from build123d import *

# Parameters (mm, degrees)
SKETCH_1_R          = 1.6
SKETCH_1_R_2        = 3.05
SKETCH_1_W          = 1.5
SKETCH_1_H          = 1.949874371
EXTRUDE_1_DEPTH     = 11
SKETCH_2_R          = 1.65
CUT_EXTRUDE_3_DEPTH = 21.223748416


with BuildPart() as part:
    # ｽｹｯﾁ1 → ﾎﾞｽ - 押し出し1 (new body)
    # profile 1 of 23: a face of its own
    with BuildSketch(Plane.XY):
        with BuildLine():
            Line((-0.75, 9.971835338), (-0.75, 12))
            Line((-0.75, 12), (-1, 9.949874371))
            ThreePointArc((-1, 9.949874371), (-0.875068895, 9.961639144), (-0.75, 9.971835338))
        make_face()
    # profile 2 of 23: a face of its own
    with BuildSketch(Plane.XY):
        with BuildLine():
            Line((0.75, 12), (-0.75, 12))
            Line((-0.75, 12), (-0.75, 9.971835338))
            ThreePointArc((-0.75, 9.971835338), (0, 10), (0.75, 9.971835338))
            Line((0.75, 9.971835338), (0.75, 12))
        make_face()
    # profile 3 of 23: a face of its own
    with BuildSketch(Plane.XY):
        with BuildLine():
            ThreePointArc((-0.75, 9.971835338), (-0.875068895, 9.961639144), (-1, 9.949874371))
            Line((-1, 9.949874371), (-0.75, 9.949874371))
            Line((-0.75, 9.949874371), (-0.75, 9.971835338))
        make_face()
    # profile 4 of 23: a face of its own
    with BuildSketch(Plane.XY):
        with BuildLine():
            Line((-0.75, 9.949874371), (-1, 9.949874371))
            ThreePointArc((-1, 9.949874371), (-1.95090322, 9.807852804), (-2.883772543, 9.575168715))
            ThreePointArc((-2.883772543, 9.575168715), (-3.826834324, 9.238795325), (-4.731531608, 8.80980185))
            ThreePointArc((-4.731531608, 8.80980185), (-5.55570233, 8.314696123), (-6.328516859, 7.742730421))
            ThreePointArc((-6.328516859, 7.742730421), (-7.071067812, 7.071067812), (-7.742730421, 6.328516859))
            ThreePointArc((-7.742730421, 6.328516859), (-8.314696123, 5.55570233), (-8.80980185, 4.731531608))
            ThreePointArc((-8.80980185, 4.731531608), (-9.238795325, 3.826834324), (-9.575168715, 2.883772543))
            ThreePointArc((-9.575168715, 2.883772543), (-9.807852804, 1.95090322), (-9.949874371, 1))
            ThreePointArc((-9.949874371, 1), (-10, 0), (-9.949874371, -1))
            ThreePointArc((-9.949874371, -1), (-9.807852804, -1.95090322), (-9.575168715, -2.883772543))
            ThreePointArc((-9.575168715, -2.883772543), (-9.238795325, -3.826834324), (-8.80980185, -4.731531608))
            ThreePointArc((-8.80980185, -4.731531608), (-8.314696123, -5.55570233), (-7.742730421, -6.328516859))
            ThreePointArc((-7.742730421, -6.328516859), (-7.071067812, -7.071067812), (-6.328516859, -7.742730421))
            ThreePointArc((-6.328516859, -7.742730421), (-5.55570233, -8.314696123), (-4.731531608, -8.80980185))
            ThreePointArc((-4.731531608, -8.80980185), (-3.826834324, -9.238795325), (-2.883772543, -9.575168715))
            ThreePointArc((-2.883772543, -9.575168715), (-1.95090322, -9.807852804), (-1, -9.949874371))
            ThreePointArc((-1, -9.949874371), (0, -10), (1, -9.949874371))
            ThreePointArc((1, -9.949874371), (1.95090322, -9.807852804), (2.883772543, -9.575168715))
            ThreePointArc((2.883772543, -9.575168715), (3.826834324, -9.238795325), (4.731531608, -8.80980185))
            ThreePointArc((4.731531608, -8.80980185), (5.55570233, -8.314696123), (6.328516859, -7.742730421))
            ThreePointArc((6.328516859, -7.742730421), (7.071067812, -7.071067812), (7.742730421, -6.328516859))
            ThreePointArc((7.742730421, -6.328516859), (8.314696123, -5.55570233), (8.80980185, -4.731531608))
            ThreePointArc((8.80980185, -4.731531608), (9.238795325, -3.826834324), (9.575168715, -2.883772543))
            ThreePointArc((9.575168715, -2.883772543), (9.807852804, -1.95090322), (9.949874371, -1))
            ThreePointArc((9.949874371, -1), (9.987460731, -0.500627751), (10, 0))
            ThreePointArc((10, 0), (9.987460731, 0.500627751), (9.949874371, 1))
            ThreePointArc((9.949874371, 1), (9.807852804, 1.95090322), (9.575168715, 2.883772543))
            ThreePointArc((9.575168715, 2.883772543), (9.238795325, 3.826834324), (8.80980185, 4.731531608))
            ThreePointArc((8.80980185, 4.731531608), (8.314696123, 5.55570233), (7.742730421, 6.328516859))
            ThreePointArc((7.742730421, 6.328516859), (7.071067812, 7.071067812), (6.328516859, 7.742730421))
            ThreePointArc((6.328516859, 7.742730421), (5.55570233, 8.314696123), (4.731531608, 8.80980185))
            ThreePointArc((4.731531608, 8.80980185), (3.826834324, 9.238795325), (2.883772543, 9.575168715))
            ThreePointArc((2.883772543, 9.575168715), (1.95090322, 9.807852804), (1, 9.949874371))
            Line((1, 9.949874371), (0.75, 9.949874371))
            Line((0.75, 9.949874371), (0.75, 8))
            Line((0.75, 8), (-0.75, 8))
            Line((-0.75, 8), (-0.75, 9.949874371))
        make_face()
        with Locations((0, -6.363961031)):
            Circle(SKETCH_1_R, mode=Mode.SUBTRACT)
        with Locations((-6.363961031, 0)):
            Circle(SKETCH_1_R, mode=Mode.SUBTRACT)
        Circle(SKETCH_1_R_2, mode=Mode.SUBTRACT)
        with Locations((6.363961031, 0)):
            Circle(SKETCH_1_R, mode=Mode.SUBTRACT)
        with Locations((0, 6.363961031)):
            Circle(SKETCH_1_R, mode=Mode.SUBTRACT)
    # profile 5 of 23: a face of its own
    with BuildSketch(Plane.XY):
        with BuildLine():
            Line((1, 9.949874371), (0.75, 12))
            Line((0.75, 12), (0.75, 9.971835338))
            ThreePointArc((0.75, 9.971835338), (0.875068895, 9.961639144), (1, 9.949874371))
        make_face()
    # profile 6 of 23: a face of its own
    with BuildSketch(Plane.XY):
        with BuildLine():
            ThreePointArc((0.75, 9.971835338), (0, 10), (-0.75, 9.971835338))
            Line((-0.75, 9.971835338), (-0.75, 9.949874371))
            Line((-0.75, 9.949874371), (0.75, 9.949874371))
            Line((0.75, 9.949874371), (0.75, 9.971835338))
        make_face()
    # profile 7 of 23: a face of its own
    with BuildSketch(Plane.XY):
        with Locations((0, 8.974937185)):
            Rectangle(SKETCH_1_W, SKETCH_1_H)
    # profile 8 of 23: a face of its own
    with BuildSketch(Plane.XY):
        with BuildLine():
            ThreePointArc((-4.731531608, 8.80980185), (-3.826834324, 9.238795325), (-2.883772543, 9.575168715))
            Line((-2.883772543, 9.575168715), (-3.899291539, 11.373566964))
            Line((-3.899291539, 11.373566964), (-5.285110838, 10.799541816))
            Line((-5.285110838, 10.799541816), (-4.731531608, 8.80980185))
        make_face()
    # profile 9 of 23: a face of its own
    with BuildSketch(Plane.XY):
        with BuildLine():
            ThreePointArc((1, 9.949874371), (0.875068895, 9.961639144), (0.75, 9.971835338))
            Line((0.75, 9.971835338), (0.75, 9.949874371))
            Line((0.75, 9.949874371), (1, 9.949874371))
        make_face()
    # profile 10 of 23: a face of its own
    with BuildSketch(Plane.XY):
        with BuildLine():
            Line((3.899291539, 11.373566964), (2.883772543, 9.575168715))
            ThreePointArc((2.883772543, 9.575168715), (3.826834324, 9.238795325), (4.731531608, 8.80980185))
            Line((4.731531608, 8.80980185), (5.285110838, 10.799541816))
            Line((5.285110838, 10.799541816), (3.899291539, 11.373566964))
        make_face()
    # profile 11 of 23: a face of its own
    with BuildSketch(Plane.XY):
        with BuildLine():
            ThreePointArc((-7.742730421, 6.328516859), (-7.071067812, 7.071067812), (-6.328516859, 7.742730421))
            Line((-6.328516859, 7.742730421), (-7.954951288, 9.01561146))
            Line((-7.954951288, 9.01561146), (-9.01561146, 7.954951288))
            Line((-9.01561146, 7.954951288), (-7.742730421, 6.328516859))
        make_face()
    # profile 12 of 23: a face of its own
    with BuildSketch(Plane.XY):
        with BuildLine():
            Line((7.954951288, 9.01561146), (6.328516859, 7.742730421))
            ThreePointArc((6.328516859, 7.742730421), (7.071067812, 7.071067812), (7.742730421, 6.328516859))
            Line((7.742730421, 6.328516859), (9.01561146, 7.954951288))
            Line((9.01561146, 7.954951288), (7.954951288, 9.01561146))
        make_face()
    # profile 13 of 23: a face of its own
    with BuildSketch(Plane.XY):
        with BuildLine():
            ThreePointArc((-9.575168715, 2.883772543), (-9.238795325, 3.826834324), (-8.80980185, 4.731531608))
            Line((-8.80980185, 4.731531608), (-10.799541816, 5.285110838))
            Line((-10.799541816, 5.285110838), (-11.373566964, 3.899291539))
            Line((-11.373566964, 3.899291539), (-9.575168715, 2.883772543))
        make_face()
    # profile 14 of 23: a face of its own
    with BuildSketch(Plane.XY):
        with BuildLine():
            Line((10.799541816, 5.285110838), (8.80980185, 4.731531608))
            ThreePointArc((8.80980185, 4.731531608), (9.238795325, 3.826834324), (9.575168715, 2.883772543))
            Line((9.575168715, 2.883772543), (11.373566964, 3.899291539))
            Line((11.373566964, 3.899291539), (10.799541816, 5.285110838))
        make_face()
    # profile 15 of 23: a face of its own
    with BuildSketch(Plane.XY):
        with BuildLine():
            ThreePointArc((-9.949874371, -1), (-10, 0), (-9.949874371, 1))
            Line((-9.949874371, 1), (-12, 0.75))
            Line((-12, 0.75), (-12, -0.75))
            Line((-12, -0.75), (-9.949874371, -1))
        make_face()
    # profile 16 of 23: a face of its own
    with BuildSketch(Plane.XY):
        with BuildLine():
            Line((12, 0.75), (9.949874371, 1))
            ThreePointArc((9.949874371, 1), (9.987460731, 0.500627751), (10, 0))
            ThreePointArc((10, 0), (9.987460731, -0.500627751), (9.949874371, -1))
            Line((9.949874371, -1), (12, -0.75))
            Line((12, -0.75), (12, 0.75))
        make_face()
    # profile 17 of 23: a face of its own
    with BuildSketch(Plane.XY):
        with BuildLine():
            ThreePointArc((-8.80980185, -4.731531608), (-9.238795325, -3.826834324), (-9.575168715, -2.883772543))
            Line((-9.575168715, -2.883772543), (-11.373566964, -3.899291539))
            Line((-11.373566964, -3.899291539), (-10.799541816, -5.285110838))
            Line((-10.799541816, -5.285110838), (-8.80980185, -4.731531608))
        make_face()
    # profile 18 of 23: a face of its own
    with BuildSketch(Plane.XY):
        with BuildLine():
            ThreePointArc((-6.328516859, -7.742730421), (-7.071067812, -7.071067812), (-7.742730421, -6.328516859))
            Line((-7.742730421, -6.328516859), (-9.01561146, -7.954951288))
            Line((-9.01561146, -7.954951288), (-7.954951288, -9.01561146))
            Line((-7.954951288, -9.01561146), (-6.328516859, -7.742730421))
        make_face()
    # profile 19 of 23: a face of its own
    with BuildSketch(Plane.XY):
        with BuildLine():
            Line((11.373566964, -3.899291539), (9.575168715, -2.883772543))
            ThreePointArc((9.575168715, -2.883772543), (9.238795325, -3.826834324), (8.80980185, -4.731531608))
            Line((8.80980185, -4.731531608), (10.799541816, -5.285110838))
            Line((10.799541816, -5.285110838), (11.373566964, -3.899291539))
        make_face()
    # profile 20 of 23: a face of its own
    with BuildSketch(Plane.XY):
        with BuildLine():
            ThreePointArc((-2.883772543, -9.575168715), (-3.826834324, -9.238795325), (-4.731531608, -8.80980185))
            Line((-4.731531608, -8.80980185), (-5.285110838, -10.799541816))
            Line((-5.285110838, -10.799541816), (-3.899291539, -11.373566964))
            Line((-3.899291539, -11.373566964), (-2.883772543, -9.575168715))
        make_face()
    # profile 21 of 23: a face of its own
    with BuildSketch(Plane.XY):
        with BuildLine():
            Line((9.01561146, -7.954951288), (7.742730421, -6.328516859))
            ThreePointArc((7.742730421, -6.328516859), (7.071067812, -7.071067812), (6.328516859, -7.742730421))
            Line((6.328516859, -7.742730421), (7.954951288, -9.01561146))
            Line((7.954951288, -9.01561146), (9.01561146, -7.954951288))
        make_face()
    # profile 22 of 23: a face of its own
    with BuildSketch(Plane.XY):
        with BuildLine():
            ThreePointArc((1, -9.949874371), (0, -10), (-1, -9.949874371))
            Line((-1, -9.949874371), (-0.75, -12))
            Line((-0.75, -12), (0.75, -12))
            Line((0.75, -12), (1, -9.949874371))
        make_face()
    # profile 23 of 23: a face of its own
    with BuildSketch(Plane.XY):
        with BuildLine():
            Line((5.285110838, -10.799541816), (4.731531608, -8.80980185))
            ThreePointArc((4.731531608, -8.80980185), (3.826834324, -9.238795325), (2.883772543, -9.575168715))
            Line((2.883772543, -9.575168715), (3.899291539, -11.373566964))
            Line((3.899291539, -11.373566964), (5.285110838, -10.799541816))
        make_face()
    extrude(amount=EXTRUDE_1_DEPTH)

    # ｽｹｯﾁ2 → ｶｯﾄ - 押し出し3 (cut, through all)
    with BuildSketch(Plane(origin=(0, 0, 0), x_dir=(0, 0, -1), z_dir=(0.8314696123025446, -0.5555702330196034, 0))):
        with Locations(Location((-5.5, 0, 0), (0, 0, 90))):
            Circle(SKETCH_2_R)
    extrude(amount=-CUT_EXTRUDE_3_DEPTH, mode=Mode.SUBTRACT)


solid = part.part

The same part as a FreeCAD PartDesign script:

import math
import FreeCAD as App
import Part
import Sketcher

V = App.Vector
Q = App.Units.Quantity

doc = App.newDocument("Part")
body = doc.addObject("PartDesign::Body", "Body")

sketch1 = doc.addObject("Sketcher::SketchObject", "Sketch")
body.addObject(sketch1)
sketch1.AttachmentSupport = (doc.XY_Plane, [""])
sketch1.MapMode = "FlatFace"
sketch1.addGeometry([
    Part.LineSegment(V(-0.8, 12, 0), V(-1, 9.9, 0)),
    Part.ArcOfCircle(Part.Circle(V(0, 0, 0), V(0, 0, 1), 10), math.radians(95.74), math.radians(106.76)),
    Part.LineSegment(V(-2.9, 9.6, 0), V(-3.9, 11.4, 0)),
    Part.LineSegment(V(-3.9, 11.4, 0), V(-5.3, 10.8, 0)),
    Part.LineSegment(V(-5.3, 10.8, 0), V(-4.7, 8.8, 0)),
    Part.ArcOfCircle(Part.Circle(V(0, 0, 0), V(0, 0, 1), 10), math.radians(118.24), math.radians(129.26)),
    Part.LineSegment(V(-6.3, 7.7, 0), V(-8, 9, 0)),
    Part.LineSegment(V(-8, 9, 0), V(-9, 8, 0)),
    Part.LineSegment(V(-9, 8, 0), V(-7.7, 6.3, 0)),
    Part.ArcOfCircle(Part.Circle(V(0, 0, 0), V(0, 0, 1), 10), math.radians(140.74), math.radians(151.76)),
    Part.LineSegment(V(-8.8, 4.7, 0), V(-10.8, 5.3, 0)),
    Part.LineSegment(V(-10.8, 5.3, 0), V(-11.4, 3.9, 0)),
    Part.LineSegment(V(-11.4, 3.9, 0), V(-9.6, 2.9, 0)),
    Part.ArcOfCircle(Part.Circle(V(0, 0, 0), V(0, 0, 1), 10), math.radians(163.24), math.radians(174.26)),
    Part.LineSegment(V(-9.9, 1, 0), V(-12, 0.8, 0)),
    Part.LineSegment(V(-12, 0.8, 0), V(-12, -0.8, 0)),
    Part.LineSegment(V(-12, -0.8, 0), V(-9.9, -1, 0)),
    Part.ArcOfCircle(Part.Circle(V(0, 0, 0), V(0, 0, 1), 10), math.radians(-174.26), math.radians(-163.24)),
    Part.LineSegment(V(-9.6, -2.9, 0), V(-11.4, -3.9, 0)),
    Part.LineSegment(V(-11.4, -3.9, 0), V(-10.8, -5.3, 0)),
    Part.LineSegment(V(-10.8, -5.3, 0), V(-8.8, -4.7, 0)),
    Part.ArcOfCircle(Part.Circle(V(0, 0, 0), V(0, 0, 1), 10), math.radians(-151.76), math.radians(-140.74)),
    Part.LineSegment(V(-7.7, -6.3, 0), V(-9, -8, 0)),
    Part.LineSegment(V(-9, -8, 0), V(-8, -9, 0)),
    Part.LineSegment(V(-8, -9, 0), V(-6.3, -7.7, 0)),
    Part.ArcOfCircle(Part.Circle(V(0, 0, 0), V(0, 0, 1), 10), math.radians(-129.26), math.radians(-118.24)),
    Part.LineSegment(V(-4.7, -8.8, 0), V(-5.3, -10.8, 0)),
    Part.LineSegment(V(-5.3, -10.8, 0), V(-3.9, -11.4, 0)),
    Part.LineSegment(V(-3.9, -11.4, 0), V(-2.9, -9.6, 0)),
    Part.ArcOfCircle(Part.Circle(V(0, 0, 0), V(0, 0, 1), 10), math.radians(-106.76), math.radians(-95.74)),
    Part.LineSegment(V(-1, -9.9, 0), V(-0.8, -12, 0)),
    Part.LineSegment(V(-0.8, -12, 0), V(0.8, -12, 0)),
    Part.LineSegment(V(0.8, -12, 0), V(1, -9.9, 0)),
    Part.ArcOfCircle(Part.Circle(V(0, 0, 0), V(0, 0, 1), 10), math.radians(-84.26), math.radians(-73.24)),
    Part.LineSegment(V(2.9, -9.6, 0), V(3.9, -11.4, 0)),
    Part.LineSegment(V(3.9, -11.4, 0), V(5.3, -10.8, 0)),
    Part.LineSegment(V(5.3, -10.8, 0), V(4.7, -8.8, 0)),
    Part.ArcOfCircle(Part.Circle(V(0, 0, 0), V(0, 0, 1), 10), math.radians(-61.76), math.radians(-50.74)),
    Part.LineSegment(V(6.3, -7.7, 0), V(8, -9, 0)),
    Part.LineSegment(V(8, -9, 0), V(9, -8, 0)),
    Part.LineSegment(V(9, -8, 0), V(7.7, -6.3, 0)),
    Part.ArcOfCircle(Part.Circle(V(0, 0, 0), V(0, 0, 1), 10), math.radians(-39.26), math.radians(-28.24)),
    Part.LineSegment(V(8.8, -4.7, 0), V(10.8, -5.3, 0)),
    Part.LineSegment(V(10.8, -5.3, 0), V(11.4, -3.9, 0)),
    Part.LineSegment(V(11.4, -3.9, 0), V(9.6, -2.9, 0)),
    Part.ArcOfCircle(Part.Circle(V(0, 0, 0), V(0, 0, 1), 10), math.radians(-16.76), math.radians(-5.74)),
    Part.LineSegment(V(9.9, -1, 0), V(12, -0.8, 0)),
    Part.LineSegment(V(12, -0.8, 0), V(12, 0.8, 0)),
    Part.LineSegment(V(12, 0.8, 0), V(9.9, 1, 0)),
    Part.ArcOfCircle(Part.Circle(V(0, 0, 0), V(0, 0, 1), 10), math.radians(5.74), math.radians(16.76)),
    Part.LineSegment(V(9.6, 2.9, 0), V(11.4, 3.9, 0)),
    Part.LineSegment(V(11.4, 3.9, 0), V(10.8, 5.3, 0)),
    Part.LineSegment(V(10.8, 5.3, 0), V(8.8, 4.7, 0)),
    Part.ArcOfCircle(Part.Circle(V(0, 0, 0), V(0, 0, 1), 10), math.radians(28.24), math.radians(39.26)),
    Part.LineSegment(V(7.7, 6.3, 0), V(9, 8, 0)),
    Part.LineSegment(V(9, 8, 0), V(8, 9, 0)),
    Part.LineSegment(V(8, 9, 0), V(6.3, 7.7, 0)),
    Part.ArcOfCircle(Part.Circle(V(0, 0, 0), V(0, 0, 1), 10), math.radians(50.74), math.radians(61.76)),
    Part.LineSegment(V(4.7, 8.8, 0), V(5.3, 10.8, 0)),
    Part.LineSegment(V(5.3, 10.8, 0), V(3.9, 11.4, 0)),
    Part.LineSegment(V(3.9, 11.4, 0), V(2.9, 9.6, 0)),
    Part.ArcOfCircle(Part.Circle(V(0, 0, 0), V(0, 0, 1), 10), math.radians(73.24), math.radians(84.26)),
    Part.LineSegment(V(1, 9.9, 0), V(0.8, 12, 0)),
    Part.LineSegment(V(0.8, 12, 0), V(-0.8, 12, 0)),
    Part.Circle(V(0, 6.4, 0), V(0, 0, 1), 1.6),
    Part.Circle(V(0, -6.4, 0), V(0, 0, 1), 1.6),
    Part.Circle(V(-6.4, 0, 0), V(0, 0, 1), 1.6),
    Part.Circle(V(0, 0, 0), V(0, 0, 1), 3),
    Part.Circle(V(6.4, 0, 0), V(0, 0, 1), 1.6),
], False)
sketch1.addConstraint([
    Sketcher.Constraint("Coincident", 0, 2, 1, 1),
    Sketcher.Constraint("Coincident", 1, 2, 2, 1),
    Sketcher.Constraint("Coincident", 2, 2, 3, 1),
    Sketcher.Constraint("Coincident", 3, 2, 4, 1),
    Sketcher.Constraint("Coincident", 4, 2, 5, 1),
    Sketcher.Constraint("Coincident", 5, 2, 6, 1),
    Sketcher.Constraint("Coincident", 6, 2, 7, 1),
    Sketcher.Constraint("Coincident", 7, 2, 8, 1),
    Sketcher.Constraint("Coincident", 8, 2, 9, 1),
    Sketcher.Constraint("Coincident", 9, 2, 10, 1),
    Sketcher.Constraint("Coincident", 10, 2, 11, 1),
    Sketcher.Constraint("Coincident", 11, 2, 12, 1),
    Sketcher.Constraint("Coincident", 12, 2, 13, 1),
    Sketcher.Constraint("Coincident", 13, 2, 14, 1),
    Sketcher.Constraint("Coincident", 14, 2, 15, 1),
    Sketcher.Constraint("Coincident", 15, 2, 16, 1),
    Sketcher.Constraint("Coincident", 16, 2, 17, 1),
    Sketcher.Constraint("Coincident", 17, 2, 18, 1),
    Sketcher.Constraint("Coincident", 18, 2, 19, 1),
    Sketcher.Constraint("Coincident", 19, 2, 20, 1),
    Sketcher.Constraint("Coincident", 20, 2, 21, 1),
    Sketcher.Constraint("Coincident", 21, 2, 22, 1),
    Sketcher.Constraint("Coincident", 22, 2, 23, 1),
    Sketcher.Constraint("Coincident", 23, 2, 24, 1),
    Sketcher.Constraint("Coincident", 24, 2, 25, 1),
    Sketcher.Constraint("Coincident", 25, 2, 26, 1),
    Sketcher.Constraint("Coincident", 26, 2, 27, 1),
    Sketcher.Constraint("Coincident", 27, 2, 28, 1),
    Sketcher.Constraint("Coincident", 28, 2, 29, 1),
    Sketcher.Constraint("Coincident", 29, 2, 30, 1),
    Sketcher.Constraint("Coincident", 30, 2, 31, 1),
    Sketcher.Constraint("Coincident", 31, 2, 32, 1),
    Sketcher.Constraint("Coincident", 32, 2, 33, 1),
    Sketcher.Constraint("Coincident", 33, 2, 34, 1),
    Sketcher.Constraint("Coincident", 34, 2, 35, 1),
    Sketcher.Constraint("Coincident", 35, 2, 36, 1),
    Sketcher.Constraint("Coincident", 36, 2, 37, 1),
    Sketcher.Constraint("Coincident", 37, 2, 38, 1),
    Sketcher.Constraint("Coincident", 38, 2, 39, 1),
    Sketcher.Constraint("Coincident", 39, 2, 40, 1),
    Sketcher.Constraint("Coincident", 40, 2, 41, 1),
    Sketcher.Constraint("Coincident", 41, 2, 42, 1),
    Sketcher.Constraint("Coincident", 42, 2, 43, 1),
    Sketcher.Constraint("Coincident", 43, 2, 44, 1),
    Sketcher.Constraint("Coincident", 44, 2, 45, 1),
    Sketcher.Constraint("Coincident", 45, 2, 46, 1),
    Sketcher.Constraint("Coincident", 46, 2, 47, 1),
    Sketcher.Constraint("Coincident", 47, 2, 48, 1),
    Sketcher.Constraint("Coincident", 48, 2, 49, 1),
    Sketcher.Constraint("Coincident", 49, 2, 50, 1),
    Sketcher.Constraint("Coincident", 50, 2, 51, 1),
    Sketcher.Constraint("Coincident", 51, 2, 52, 1),
    Sketcher.Constraint("Coincident", 52, 2, 53, 1),
    Sketcher.Constraint("Coincident", 53, 2, 54, 1),
    Sketcher.Constraint("Coincident", 54, 2, 55, 1),
    Sketcher.Constraint("Coincident", 55, 2, 56, 1),
    Sketcher.Constraint("Coincident", 56, 2, 57, 1),
    Sketcher.Constraint("Coincident", 57, 2, 58, 1),
    Sketcher.Constraint("Coincident", 58, 2, 59, 1),
    Sketcher.Constraint("Coincident", 59, 2, 60, 1),
    Sketcher.Constraint("Coincident", 60, 2, 61, 1),
    Sketcher.Constraint("Coincident", 61, 2, 62, 1),
    Sketcher.Constraint("Coincident", 62, 2, 63, 1),
    Sketcher.Constraint("Coincident", 63, 2, 0, 1),
    Sketcher.Constraint("Vertical", 15),
    Sketcher.Constraint("Horizontal", 31),
    Sketcher.Constraint("Vertical", 47),
    Sketcher.Constraint("Horizontal", 63),
    Sketcher.Constraint("Coincident", 1, 3, -1, 1),
    Sketcher.Constraint("Coincident", 5, 3, -1, 1),
    Sketcher.Constraint("Coincident", 9, 3, -1, 1),
    Sketcher.Constraint("Coincident", 13, 3, -1, 1),
    Sketcher.Constraint("Coincident", 17, 3, -1, 1),
    Sketcher.Constraint("Coincident", 21, 3, -1, 1),
    Sketcher.Constraint("Coincident", 25, 3, -1, 1),
    Sketcher.Constraint("Coincident", 29, 3, -1, 1),
    Sketcher.Constraint("Coincident", 33, 3, -1, 1),
    Sketcher.Constraint("Coincident", 37, 3, -1, 1),
    Sketcher.Constraint("Coincident", 41, 3, -1, 1),
    Sketcher.Constraint("Coincident", 45, 3, -1, 1),
    Sketcher.Constraint("Coincident", 49, 3, -1, 1),
    Sketcher.Constraint("Coincident", 53, 3, -1, 1),
    Sketcher.Constraint("Coincident", 57, 3, -1, 1),
    Sketcher.Constraint("Coincident", 61, 3, -1, 1),
    Sketcher.Constraint("Coincident", 67, 3, -1, 1),
    Sketcher.Constraint("Equal", 1, 5),
    Sketcher.Constraint("Equal", 5, 9),
    Sketcher.Constraint("Equal", 9, 13),
    Sketcher.Constraint("Equal", 13, 17),
    Sketcher.Constraint("Equal", 17, 21),
    Sketcher.Constraint("Equal", 21, 25),
    Sketcher.Constraint("Equal", 25, 29),
    Sketcher.Constraint("Equal", 29, 33),
    Sketcher.Constraint("Equal", 33, 37),
    Sketcher.Constraint("Equal", 37, 41),
    Sketcher.Constraint("Equal", 41, 45),
    Sketcher.Constraint("Equal", 45, 49),
    Sketcher.Constraint("Equal", 49, 53),
    Sketcher.Constraint("Equal", 53, 57),
    Sketcher.Constraint("Equal", 57, 61),
    Sketcher.Constraint("Equal", 64, 65),
    Sketcher.Constraint("Equal", 65, 66),
    Sketcher.Constraint("Equal", 66, 68),
    Sketcher.Constraint("Symmetric", 64, 3, 65, 3, -1, 1),
    Sketcher.Constraint("Symmetric", 66, 3, 68, 3, -1, 1),
    Sketcher.Constraint("Symmetric", 2, 2, 34, 2, -1, 1),
    Sketcher.Constraint("Symmetric", 3, 2, 35, 2, -1, 1),
    Sketcher.Constraint("Symmetric", 6, 2, 38, 2, -1, 1),
    Sketcher.Constraint("Symmetric", 7, 2, 39, 2, -1, 1),
    Sketcher.Constraint("Symmetric", 10, 2, 42, 2, -1, 1),
    Sketcher.Constraint("Symmetric", 11, 2, 43, 2, -1, 1),
    Sketcher.Constraint("Symmetric", 14, 2, 46, 2, -1, 1),
    Sketcher.Constraint("Symmetric", 18, 2, 50, 2, -1, 1),
    Sketcher.Constraint("Symmetric", 19, 2, 51, 2, -1, 1),
    Sketcher.Constraint("Symmetric", 22, 2, 54, 2, -1, 1),
    Sketcher.Constraint("Symmetric", 23, 2, 55, 2, -1, 1),
    Sketcher.Constraint("Symmetric", 26, 2, 58, 2, -1, 1),
    Sketcher.Constraint("Symmetric", 27, 2, 59, 2, -1, 1),
    Sketcher.Constraint("Symmetric", 30, 2, 62, 2, -1, 1),
    Sketcher.Constraint("Symmetric", 27, 2, 34, 2, -2),
    Sketcher.Constraint("Symmetric", 26, 2, 35, 2, -2),
    Sketcher.Constraint("Symmetric", 23, 2, 38, 2, -2),
    Sketcher.Constraint("Symmetric", 22, 2, 39, 2, -2),
    Sketcher.Constraint("Symmetric", 19, 2, 42, 2, -2),
    Sketcher.Constraint("Symmetric", 18, 2, 43, 2, -2),
    Sketcher.Constraint("PointOnObject", 64, 3, -2),
    Sketcher.Constraint("PointOnObject", 66, 3, -1),
    Sketcher.Constraint("Perpendicular", 0, 16),
    Sketcher.Constraint("Perpendicular", 2, 18),
    Sketcher.Constraint("Perpendicular", 3, 19),
    Sketcher.Constraint("Perpendicular", 4, 20),
    Sketcher.Constraint("Perpendicular", 6, 22),
    Sketcher.Constraint("Perpendicular", 7, 23),
    Sketcher.Constraint("Perpendicular", 8, 24),
    Sketcher.Constraint("Perpendicular", 10, 26),
    Sketcher.Constraint("Perpendicular", 12, 28),
    Sketcher.Constraint("Perpendicular", 14, 30),
    Sketcher.Constraint("Perpendicular", 16, 32),
    Sketcher.Constraint("Perpendicular", 18, 34),
    Sketcher.Constraint("Perpendicular", 20, 36),
    Sketcher.Constraint("Perpendicular", 22, 38),
    Sketcher.Constraint("Perpendicular", 24, 40),
    Sketcher.Constraint("Perpendicular", 26, 42),
    Sketcher.Constraint("Perpendicular", 28, 44),
    Sketcher.Constraint("Perpendicular", 30, 46),
    Sketcher.Constraint("Perpendicular", 32, 48),
    Sketcher.Constraint("Perpendicular", 34, 50),
    Sketcher.Constraint("Perpendicular", 36, 52),
    Sketcher.Constraint("Perpendicular", 38, 54),
    Sketcher.Constraint("Perpendicular", 40, 56),
    Sketcher.Constraint("Perpendicular", 42, 58),
    Sketcher.Constraint("Perpendicular", 44, 60),
    Sketcher.Constraint("Perpendicular", 46, 62),
    Sketcher.Constraint("Horizontal", 29, 2, 32, 2),
    Sketcher.Constraint("Horizontal", 28, 2, 33, 2),
    Sketcher.Constraint("Horizontal", 25, 2, 36, 2),
    Sketcher.Constraint("Horizontal", 24, 2, 37, 2),
    Sketcher.Constraint("Horizontal", 16, 2, 45, 2),
    Sketcher.Constraint("Horizontal", 15, 2, 46, 2),
    Sketcher.Constraint("Horizontal", 14, 2, 47, 2),
    Sketcher.Constraint("Horizontal", 0, 2, 61, 2),
    Sketcher.Constraint("Equal", 63, 15),
    Sketcher.Constraint("Equal", 0, 2),
    Sketcher.Constraint("Equal", 2, 4),
    Sketcher.Constraint("Equal", 4, 6),
    Sketcher.Constraint("Equal", 3, 7),
    Sketcher.Constraint("Equal", 6, 8),
    Sketcher.Constraint("Equal", 8, 10),
    Sketcher.Constraint("Equal", 7, 11),
    Sketcher.Constraint("Equal", 10, 12),
    Sketcher.Constraint("Equal", 12, 14),
    Sketcher.Constraint("Radius", 1, 10.0),
    Sketcher.Constraint("Diameter", 64, 3.2),
    Sketcher.Constraint("Diameter", 67, 6.1),
    Sketcher.Constraint("DistanceX", 31, 1, 31, 2, 1.5),
    Sketcher.Constraint("DistanceX", 0, 2, -1, 1, 1.0),
    Sketcher.Constraint("DistanceX", 14, 2, -1, 1, 12.0),
    Sketcher.Constraint("Angle", 3, Q("-157.5 deg")),
    Sketcher.Constraint("Distance", 3, 1.5),
    Sketcher.Constraint("DistanceY", -1, 1, 4, 2, 8.809802),
    Sketcher.Constraint("DistanceY", -1, 1, 64, 3, 6.363961),
    Sketcher.Constraint("DistanceX", 66, 3, -1, 1, 6.363961),
    Sketcher.Constraint("DistanceY", -1, 1, 1, 2, 9.575169),
    Sketcher.Constraint("DistanceY", -1, 1, 5, 2, 7.74273),
])
pad1 = doc.addObject("PartDesign::Pad", "Pad")
body.addObject(pad1)
pad1.Profile = sketch1
pad1.Length = 11

sketch2 = doc.addObject("Sketcher::SketchObject", "Sketch001")
body.addObject(sketch2)
sketch2.Placement = App.Placement(V(0, 0, 0), App.Rotation(V(0, 0, -1), V(0.555570233, 0.831469612, 0), V(0.831469612, -0.555570233, 0), "ZXY"))
sketch2.addGeometry(Part.Circle(V(-5.5, 0, 0), V(0, 0, 1), 1.6), False)
sketch2.addConstraint([
    Sketcher.Constraint("PointOnObject", 0, 3, -1),
    Sketcher.Constraint("Diameter", 0, 3.3),
    Sketcher.Constraint("DistanceX", 0, 3, -1, 1, 5.5),
])
pocket1 = doc.addObject("PartDesign::Pocket", "Pocket")
body.addObject(pocket1)
pocket1.Profile = sketch2
pocket1.Type = "ThroughAll"

doc.recompute()
